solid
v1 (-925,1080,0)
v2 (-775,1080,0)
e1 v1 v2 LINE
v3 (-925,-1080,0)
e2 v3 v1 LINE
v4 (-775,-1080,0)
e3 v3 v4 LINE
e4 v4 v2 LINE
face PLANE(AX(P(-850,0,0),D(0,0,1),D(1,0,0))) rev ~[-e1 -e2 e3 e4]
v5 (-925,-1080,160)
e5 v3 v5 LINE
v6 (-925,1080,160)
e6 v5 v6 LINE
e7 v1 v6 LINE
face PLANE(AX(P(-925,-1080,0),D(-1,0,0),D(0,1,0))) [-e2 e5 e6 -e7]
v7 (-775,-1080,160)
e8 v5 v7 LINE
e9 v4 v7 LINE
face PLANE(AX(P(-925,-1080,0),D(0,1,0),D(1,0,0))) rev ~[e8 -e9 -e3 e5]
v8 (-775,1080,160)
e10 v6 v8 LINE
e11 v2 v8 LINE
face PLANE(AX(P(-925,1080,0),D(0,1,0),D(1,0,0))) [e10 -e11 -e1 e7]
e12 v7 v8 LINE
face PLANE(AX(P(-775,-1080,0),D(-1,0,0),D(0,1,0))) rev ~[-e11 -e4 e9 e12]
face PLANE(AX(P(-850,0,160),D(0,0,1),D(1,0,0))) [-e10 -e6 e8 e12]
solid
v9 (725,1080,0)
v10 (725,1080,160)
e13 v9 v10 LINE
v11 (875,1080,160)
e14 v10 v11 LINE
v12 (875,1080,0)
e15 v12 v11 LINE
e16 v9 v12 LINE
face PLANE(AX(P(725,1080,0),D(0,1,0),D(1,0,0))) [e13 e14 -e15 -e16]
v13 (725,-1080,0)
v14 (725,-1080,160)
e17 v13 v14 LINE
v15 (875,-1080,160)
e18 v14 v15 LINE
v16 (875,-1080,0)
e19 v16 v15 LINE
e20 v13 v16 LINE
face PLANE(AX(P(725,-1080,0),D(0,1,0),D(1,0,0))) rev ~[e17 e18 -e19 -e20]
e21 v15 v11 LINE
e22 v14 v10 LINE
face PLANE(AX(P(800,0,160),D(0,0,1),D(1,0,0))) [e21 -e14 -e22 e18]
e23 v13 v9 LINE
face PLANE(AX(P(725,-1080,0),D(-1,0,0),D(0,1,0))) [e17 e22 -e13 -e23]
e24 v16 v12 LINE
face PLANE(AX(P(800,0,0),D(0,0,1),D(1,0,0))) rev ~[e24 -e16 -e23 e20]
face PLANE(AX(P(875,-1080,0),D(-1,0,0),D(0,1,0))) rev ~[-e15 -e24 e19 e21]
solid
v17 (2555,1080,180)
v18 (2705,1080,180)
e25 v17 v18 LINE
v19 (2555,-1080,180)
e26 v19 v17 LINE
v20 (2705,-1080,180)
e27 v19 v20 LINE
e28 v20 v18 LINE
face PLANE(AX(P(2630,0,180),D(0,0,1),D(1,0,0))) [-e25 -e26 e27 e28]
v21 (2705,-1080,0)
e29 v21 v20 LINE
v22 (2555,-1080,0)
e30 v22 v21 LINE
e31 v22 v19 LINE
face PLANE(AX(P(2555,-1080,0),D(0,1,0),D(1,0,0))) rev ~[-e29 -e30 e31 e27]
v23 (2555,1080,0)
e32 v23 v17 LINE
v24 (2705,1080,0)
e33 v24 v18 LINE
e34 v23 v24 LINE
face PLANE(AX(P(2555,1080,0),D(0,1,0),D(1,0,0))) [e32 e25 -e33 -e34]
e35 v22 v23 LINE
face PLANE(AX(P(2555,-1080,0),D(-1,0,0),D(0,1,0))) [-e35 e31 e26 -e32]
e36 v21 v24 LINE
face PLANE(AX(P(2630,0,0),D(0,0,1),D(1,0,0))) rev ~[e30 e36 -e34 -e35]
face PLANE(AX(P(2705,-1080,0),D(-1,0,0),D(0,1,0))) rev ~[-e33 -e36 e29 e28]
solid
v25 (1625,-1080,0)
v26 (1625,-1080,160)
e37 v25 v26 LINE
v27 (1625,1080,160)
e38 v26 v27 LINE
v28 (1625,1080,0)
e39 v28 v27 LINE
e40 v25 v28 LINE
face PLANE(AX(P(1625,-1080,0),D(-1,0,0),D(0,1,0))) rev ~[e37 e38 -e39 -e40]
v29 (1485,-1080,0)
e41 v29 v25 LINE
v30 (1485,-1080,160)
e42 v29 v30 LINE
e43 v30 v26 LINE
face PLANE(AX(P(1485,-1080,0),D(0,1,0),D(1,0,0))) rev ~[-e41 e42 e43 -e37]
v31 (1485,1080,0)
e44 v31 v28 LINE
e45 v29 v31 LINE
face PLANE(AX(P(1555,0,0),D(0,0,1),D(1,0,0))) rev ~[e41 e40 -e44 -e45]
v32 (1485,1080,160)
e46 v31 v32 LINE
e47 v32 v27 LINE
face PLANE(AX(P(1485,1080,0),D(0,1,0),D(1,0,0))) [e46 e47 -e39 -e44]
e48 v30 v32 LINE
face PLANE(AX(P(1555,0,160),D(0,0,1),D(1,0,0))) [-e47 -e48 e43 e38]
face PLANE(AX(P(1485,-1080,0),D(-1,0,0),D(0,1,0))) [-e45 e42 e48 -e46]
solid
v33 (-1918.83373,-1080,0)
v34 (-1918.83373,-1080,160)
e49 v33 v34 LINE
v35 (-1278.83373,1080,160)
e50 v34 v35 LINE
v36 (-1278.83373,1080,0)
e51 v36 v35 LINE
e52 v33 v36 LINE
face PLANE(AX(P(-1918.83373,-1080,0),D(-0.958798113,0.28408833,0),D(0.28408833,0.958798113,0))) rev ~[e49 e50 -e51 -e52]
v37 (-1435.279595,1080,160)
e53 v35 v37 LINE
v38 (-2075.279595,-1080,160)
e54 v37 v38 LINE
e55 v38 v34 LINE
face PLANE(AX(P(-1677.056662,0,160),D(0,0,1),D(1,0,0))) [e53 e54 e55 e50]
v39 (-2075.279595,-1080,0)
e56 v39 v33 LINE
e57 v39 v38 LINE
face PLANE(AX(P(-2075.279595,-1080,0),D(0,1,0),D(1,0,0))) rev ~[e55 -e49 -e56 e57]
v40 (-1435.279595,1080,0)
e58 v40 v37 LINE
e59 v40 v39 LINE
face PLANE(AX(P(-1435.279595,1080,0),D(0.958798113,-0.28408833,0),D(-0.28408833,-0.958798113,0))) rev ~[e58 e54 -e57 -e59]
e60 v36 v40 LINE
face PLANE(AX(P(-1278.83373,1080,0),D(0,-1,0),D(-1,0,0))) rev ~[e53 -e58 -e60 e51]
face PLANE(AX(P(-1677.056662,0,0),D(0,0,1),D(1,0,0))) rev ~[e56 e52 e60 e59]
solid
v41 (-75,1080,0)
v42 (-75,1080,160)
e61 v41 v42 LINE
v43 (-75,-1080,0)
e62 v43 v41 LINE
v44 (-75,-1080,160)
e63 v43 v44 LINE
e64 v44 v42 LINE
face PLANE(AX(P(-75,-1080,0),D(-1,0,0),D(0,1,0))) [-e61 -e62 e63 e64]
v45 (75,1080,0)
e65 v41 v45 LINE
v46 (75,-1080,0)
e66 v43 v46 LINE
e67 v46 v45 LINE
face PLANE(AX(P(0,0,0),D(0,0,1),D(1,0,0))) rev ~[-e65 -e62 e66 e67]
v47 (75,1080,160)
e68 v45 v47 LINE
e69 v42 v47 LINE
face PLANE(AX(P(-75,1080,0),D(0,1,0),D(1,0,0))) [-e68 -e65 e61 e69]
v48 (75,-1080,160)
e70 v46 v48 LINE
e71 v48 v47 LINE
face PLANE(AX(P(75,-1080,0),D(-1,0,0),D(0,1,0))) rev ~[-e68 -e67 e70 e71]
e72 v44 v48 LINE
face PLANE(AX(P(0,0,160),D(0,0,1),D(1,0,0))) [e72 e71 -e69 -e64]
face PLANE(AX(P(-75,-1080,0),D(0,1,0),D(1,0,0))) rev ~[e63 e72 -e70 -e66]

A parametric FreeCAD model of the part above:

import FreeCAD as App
import Part
import Sketcher
from FreeCAD import Vector


def add_polygon(sketch, points):
    """Adds a closed chain of lines whose ends are joined by coincident constraints."""
    first, n = sketch.GeometryCount, len(points)
    for a, b in zip(points, points[1:] + points[:1]):
        sketch.addGeometry(Part.LineSegment(App.Vector(*a, 0), App.Vector(*b, 0)), False)
    for i in range(n):
        sketch.addConstraint(Sketcher.Constraint("Coincident", first + i, 2, first + (i + 1) % n, 1))

doc = App.newDocument("Part")
params = doc.addObject("Spreadsheet::Sheet", "Params")
for row, (alias, value) in enumerate([
    ("sketch1_width", "150 mm"),
    ("sketch1_width2", "140 mm"),
    ("sketch1_height", "2160 mm"),
    ("pad1_length", "160 mm"),
    ("sketch2_width", "150 mm"),
    ("sketch2_height", "2160 mm"),
    ("pad2_length", "180 mm"),
], start=1):
    params.set(f"A{row}", alias)
    params.set(f"B{row}", "=" + value)
    params.setAlias(f"B{row}", alias)

body = doc.addObject("PartDesign::Body", "Body")
body.AllowCompound = True

# Sketch on XY plane
sketch1 = body.newObject("Sketcher::SketchObject", "Sketch")
sketch1.AttachmentSupport = (doc.getObject("XY_Plane"), [""])
sketch1.MapMode = "FlatFace"
add_polygon(sketch1, [(-1919, -1080), (-1279, 1080), (-1435, 1080), (-2075, -1080)])  # lines 0-3
add_polygon(sketch1, [(-925, 1080), (-925, -1080), (-775, -1080), (-775, 1080)])  # lines 4-7
add_polygon(sketch1, [(-75, 1080), (-75, -1080), (75, -1080), (75, 1080)])  # lines 8-11
add_polygon(sketch1, [(725, 1080), (725, -1080), (875, -1080), (875, 1080)])  # lines 12-15
add_polygon(sketch1, [(1485, 1080), (1485, -1080), (1625, -1080), (1625, 1080)])  # lines 16-19
sketch1.addConstraint(Sketcher.Constraint("Horizontal", 1))
sketch1.addConstraint(Sketcher.Constraint("Horizontal", 3))
sketch1.addConstraint(Sketcher.Constraint("Vertical", 4))
sketch1.addConstraint(Sketcher.Constraint("Horizontal", 5))
sketch1.addConstraint(Sketcher.Constraint("Vertical", 6))
sketch1.addConstraint(Sketcher.Constraint("Horizontal", 7))
sketch1.addConstraint(Sketcher.Constraint("Vertical", 8))
sketch1.addConstraint(Sketcher.Constraint("Horizontal", 9))
sketch1.addConstraint(Sketcher.Constraint("Vertical", 10))
sketch1.addConstraint(Sketcher.Constraint("Horizontal", 11))
sketch1.addConstraint(Sketcher.Constraint("Vertical", 12))
sketch1.addConstraint(Sketcher.Constraint("Horizontal", 13))
sketch1.addConstraint(Sketcher.Constraint("Vertical", 14))
sketch1.addConstraint(Sketcher.Constraint("Horizontal", 15))
sketch1.addConstraint(Sketcher.Constraint("Vertical", 16))
sketch1.addConstraint(Sketcher.Constraint("Horizontal", 17))
sketch1.addConstraint(Sketcher.Constraint("Vertical", 18))
sketch1.addConstraint(Sketcher.Constraint("Horizontal", 19))
sketch1.addConstraint(Sketcher.Constraint("Symmetric", 8, 2, 10, 2, -1, 1))
sketch1.addConstraint(Sketcher.Constraint("Parallel", 0, 2))
sketch1.addConstraint(Sketcher.Constraint("Horizontal", 3, 2, 4, 2))
sketch1.addConstraint(Sketcher.Constraint("Horizontal", 1, 2, 6, 2))
sketch1.addConstraint(Sketcher.Constraint("Horizontal", 5, 2, 8, 2))
sketch1.addConstraint(Sketcher.Constraint("Horizontal", 7, 2, 10, 2))
sketch1.addConstraint(Sketcher.Constraint("Horizontal", 9, 2, 12, 2))
sketch1.addConstraint(Sketcher.Constraint("Horizontal", 11, 2, 14, 2))
sketch1.addConstraint(Sketcher.Constraint("Horizontal", 13, 2, 16, 2))
sketch1.addConstraint(Sketcher.Constraint("Horizontal", 15, 2, 18, 2))
sketch1.addConstraint(Sketcher.Constraint("Equal", 7, 9))
sketch1.addConstraint(Sketcher.Constraint("Equal", 11, 13))
sketch1.addConstraint(Sketcher.Constraint("DistanceX", 5, 1, 5, 2, 150.0))
sketch1.addConstraint(Sketcher.Constraint("DistanceX", 17, 1, 17, 2, 140.0))
sketch1.addConstraint(Sketcher.Constraint("DistanceY", 4, 2, 4, 1, 2160.0))
sketch1.addConstraint(Sketcher.Constraint("DistanceX", 4, 2, -1, 1, 925.0))
sketch1.addConstraint(Sketcher.Constraint("DistanceX", -1, 1, 12, 2, 725.0))
sketch1.addConstraint(Sketcher.Constraint("DistanceX", -1, 1, 16, 2, 1485.0))
sketch1.addConstraint(Sketcher.Constraint("DistanceX", 2, 2, 1, 2, 640.0))
sketch1.addConstraint(Sketcher.Constraint("DistanceX", 1, 2, 1, 1, 156.445865))
sketch1.addConstraint(Sketcher.Constraint("DistanceX", 0, 2, -1, 1, 1278.83373))
sketch1.setExpression("Constraints[50]", "Params.sketch1_width")
sketch1.setExpression("Constraints[51]", "Params.sketch1_width2")
sketch1.setExpression("Constraints[52]", "Params.sketch1_height")
pad1 = body.newObject("PartDesign::Pad", "Pad")
pad1.Profile = sketch1
pad1.setExpression("Length", "Params.pad1_length")
body2 = doc.addObject("PartDesign::Body", "Body001")

# Sketch on XY plane
sketch2 = body2.newObject("Sketcher::SketchObject", "Sketch001")
sketch2.AttachmentSupport = (doc.getObject("XY_Plane001"), [""])
sketch2.MapMode = "FlatFace"
add_polygon(sketch2, [(2555, 1080), (2555, -1080), (2705, -1080), (2705, 1080)])  # lines 0-3
sketch2.addConstraint(Sketcher.Constraint("Vertical", 0))
sketch2.addConstraint(Sketcher.Constraint("Horizontal", 1))
sketch2.addConstraint(Sketcher.Constraint("Vertical", 2))
sketch2.addConstraint(Sketcher.Constraint("Horizontal", 3))
sketch2.addConstraint(Sketcher.Constraint("DistanceX", 1, 1, 1, 2, 150.0))
sketch2.addConstraint(Sketcher.Constraint("DistanceY", 0, 2, 0, 1, 2160.0))
sketch2.addConstraint(Sketcher.Constraint("DistanceX", -1, 1, 0, 2, 2555.0))
sketch2.addConstraint(Sketcher.Constraint("DistanceY", 0, 2, -1, 1, 1080.0))
sketch2.setExpression("Constraints[8]", "Params.sketch2_width")
sketch2.setExpression("Constraints[9]", "Params.sketch2_height")
pad2 = body2.newObject("PartDesign::Pad", "Pad001")
pad2.Profile = sketch2
pad2.setExpression("Length", "Params.pad2_length")

doc.recompute()
